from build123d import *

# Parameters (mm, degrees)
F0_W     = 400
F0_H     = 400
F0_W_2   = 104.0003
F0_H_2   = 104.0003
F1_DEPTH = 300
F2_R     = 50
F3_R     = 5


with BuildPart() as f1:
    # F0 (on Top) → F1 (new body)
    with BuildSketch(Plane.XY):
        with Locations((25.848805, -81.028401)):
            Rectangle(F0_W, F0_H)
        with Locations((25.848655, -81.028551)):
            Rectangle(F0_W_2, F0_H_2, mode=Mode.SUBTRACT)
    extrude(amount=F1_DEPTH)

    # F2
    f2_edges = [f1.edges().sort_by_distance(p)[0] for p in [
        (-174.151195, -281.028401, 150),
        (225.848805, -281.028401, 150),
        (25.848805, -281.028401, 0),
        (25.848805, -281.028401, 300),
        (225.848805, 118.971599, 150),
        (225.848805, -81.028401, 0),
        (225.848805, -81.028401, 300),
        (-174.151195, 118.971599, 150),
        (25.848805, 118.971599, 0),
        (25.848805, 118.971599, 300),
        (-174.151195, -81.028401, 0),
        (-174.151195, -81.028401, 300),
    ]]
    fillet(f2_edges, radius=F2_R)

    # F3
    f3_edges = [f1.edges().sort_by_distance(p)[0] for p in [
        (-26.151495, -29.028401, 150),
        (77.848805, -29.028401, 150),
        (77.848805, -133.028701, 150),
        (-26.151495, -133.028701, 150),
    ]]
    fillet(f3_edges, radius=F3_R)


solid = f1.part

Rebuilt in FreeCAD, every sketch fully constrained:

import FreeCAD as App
import Part
import Sketcher
Q = App.Units.Quantity


def edges_at(feature, points):
    """Names of the edges that pass closest to the given points."""
    edges = feature.Shape.Edges
    near = lambda p: min(range(len(edges)), key=lambda i: edges[i].distToShape(Part.Vertex(*p))[0])
    return sorted({f"Edge{near(p) + 1}" for p in points})

doc = App.newDocument("Part")
body = doc.addObject("PartDesign::Body", "Body")

# Sketch on XY plane
sketch1 = body.newObject("Sketcher::SketchObject", "Sketch")
sketch1.AttachmentSupport = (doc.getObject("XY_Plane"), [""])
sketch1.MapMode = "FlatFace"
sketch1.addGeometry([
    Part.LineSegment(App.Vector(-174, 119, 0), App.Vector(-174, -281, 0)),  # 0
    Part.LineSegment(App.Vector(-174, -281, 0), App.Vector(226, -281, 0)),  # 1
    Part.LineSegment(App.Vector(226, -281, 0), App.Vector(226, 119, 0)),  # 2
    Part.LineSegment(App.Vector(226, 119, 0), App.Vector(-174, 119, 0)),  # 3
    Part.LineSegment(App.Vector(78, -133, 0), App.Vector(-26, -133, 0)),  # 4
    Part.LineSegment(App.Vector(-26, -133, 0), App.Vector(-26, -29, 0)),  # 5
    Part.LineSegment(App.Vector(-26, -29, 0), App.Vector(78, -29, 0)),  # 6
    Part.LineSegment(App.Vector(78, -29, 0), App.Vector(78, -133, 0)),  # 7
], False)
sketch1.addConstraint([
    Sketcher.Constraint("Coincident", 0, 2, 1, 1),
    Sketcher.Constraint("Coincident", 1, 2, 2, 1),
    Sketcher.Constraint("Coincident", 2, 2, 3, 1),
    Sketcher.Constraint("Coincident", 3, 2, 0, 1),
    Sketcher.Constraint("Coincident", 4, 2, 5, 1),
    Sketcher.Constraint("Coincident", 5, 2, 6, 1),
    Sketcher.Constraint("Coincident", 6, 2, 7, 1),
    Sketcher.Constraint("Coincident", 7, 2, 4, 1),
    Sketcher.Constraint("Vertical", 0),
    Sketcher.Constraint("Horizontal", 1),
    Sketcher.Constraint("Vertical", 2),
    Sketcher.Constraint("Horizontal", 3),
    Sketcher.Constraint("Horizontal", 4),
    Sketcher.Constraint("Vertical", 5),
    Sketcher.Constraint("Horizontal", 6),
    Sketcher.Constraint("Vertical", 7),
    Sketcher.Constraint("Equal", 3, 0),
    Sketcher.Constraint("Equal", 6, 5),
    Sketcher.Constraint("DistanceX", 1, 1, 1, 2, Q("400 mm")),
    Sketcher.Constraint("DistanceY", 5, 2, 3, 2, Q("148 mm")),
    Sketcher.Constraint("DistanceX", 6, 2, 2, 2, Q("148 mm")),
    Sketcher.Constraint("DistanceX", 4, 2, 4, 1, Q("104.0003 mm")),
    Sketcher.Constraint("DistanceY", 0, 2, -1, 1, Q("281.028401 mm")),
    Sketcher.Constraint("DistanceX", 0, 2, -1, 1, Q("174.151195 mm")),
])
pad1 = body.newObject("PartDesign::Pad", "Pad")
pad1.Profile = sketch1
pad1.Length = 300
doc.recompute()

fillet = body.newObject("PartDesign::Fillet", "Fillet")
fillet.Base = (pad1, edges_at(pad1, [
    (-174.151, -281.028, 150),
    (225.849, -281.028, 150),
    (25.849, -281.028, 0),
    (25.849, -281.028, 300),
    (225.849, 118.972, 150),
    (225.849, -81.028, 0),
    (225.849, -81.028, 300),
    (-174.151, 118.972, 150),
    (25.849, 118.972, 0),
    (25.849, 118.972, 300),
    (-174.151, -81.028, 0),
    (-174.151, -81.028, 300),
]))
fillet.Radius = 50
doc.recompute()

fillet2 = body.newObject("PartDesign::Fillet", "Fillet001")
fillet2.Base = (fillet, edges_at(fillet, [
    (-26.151, -29.028, 150),
    (77.849, -29.028, 150),
    (77.849, -133.029, 150),
    (-26.151, -133.029, 150),
]))
fillet2.Radius = 5

doc.recompute()
